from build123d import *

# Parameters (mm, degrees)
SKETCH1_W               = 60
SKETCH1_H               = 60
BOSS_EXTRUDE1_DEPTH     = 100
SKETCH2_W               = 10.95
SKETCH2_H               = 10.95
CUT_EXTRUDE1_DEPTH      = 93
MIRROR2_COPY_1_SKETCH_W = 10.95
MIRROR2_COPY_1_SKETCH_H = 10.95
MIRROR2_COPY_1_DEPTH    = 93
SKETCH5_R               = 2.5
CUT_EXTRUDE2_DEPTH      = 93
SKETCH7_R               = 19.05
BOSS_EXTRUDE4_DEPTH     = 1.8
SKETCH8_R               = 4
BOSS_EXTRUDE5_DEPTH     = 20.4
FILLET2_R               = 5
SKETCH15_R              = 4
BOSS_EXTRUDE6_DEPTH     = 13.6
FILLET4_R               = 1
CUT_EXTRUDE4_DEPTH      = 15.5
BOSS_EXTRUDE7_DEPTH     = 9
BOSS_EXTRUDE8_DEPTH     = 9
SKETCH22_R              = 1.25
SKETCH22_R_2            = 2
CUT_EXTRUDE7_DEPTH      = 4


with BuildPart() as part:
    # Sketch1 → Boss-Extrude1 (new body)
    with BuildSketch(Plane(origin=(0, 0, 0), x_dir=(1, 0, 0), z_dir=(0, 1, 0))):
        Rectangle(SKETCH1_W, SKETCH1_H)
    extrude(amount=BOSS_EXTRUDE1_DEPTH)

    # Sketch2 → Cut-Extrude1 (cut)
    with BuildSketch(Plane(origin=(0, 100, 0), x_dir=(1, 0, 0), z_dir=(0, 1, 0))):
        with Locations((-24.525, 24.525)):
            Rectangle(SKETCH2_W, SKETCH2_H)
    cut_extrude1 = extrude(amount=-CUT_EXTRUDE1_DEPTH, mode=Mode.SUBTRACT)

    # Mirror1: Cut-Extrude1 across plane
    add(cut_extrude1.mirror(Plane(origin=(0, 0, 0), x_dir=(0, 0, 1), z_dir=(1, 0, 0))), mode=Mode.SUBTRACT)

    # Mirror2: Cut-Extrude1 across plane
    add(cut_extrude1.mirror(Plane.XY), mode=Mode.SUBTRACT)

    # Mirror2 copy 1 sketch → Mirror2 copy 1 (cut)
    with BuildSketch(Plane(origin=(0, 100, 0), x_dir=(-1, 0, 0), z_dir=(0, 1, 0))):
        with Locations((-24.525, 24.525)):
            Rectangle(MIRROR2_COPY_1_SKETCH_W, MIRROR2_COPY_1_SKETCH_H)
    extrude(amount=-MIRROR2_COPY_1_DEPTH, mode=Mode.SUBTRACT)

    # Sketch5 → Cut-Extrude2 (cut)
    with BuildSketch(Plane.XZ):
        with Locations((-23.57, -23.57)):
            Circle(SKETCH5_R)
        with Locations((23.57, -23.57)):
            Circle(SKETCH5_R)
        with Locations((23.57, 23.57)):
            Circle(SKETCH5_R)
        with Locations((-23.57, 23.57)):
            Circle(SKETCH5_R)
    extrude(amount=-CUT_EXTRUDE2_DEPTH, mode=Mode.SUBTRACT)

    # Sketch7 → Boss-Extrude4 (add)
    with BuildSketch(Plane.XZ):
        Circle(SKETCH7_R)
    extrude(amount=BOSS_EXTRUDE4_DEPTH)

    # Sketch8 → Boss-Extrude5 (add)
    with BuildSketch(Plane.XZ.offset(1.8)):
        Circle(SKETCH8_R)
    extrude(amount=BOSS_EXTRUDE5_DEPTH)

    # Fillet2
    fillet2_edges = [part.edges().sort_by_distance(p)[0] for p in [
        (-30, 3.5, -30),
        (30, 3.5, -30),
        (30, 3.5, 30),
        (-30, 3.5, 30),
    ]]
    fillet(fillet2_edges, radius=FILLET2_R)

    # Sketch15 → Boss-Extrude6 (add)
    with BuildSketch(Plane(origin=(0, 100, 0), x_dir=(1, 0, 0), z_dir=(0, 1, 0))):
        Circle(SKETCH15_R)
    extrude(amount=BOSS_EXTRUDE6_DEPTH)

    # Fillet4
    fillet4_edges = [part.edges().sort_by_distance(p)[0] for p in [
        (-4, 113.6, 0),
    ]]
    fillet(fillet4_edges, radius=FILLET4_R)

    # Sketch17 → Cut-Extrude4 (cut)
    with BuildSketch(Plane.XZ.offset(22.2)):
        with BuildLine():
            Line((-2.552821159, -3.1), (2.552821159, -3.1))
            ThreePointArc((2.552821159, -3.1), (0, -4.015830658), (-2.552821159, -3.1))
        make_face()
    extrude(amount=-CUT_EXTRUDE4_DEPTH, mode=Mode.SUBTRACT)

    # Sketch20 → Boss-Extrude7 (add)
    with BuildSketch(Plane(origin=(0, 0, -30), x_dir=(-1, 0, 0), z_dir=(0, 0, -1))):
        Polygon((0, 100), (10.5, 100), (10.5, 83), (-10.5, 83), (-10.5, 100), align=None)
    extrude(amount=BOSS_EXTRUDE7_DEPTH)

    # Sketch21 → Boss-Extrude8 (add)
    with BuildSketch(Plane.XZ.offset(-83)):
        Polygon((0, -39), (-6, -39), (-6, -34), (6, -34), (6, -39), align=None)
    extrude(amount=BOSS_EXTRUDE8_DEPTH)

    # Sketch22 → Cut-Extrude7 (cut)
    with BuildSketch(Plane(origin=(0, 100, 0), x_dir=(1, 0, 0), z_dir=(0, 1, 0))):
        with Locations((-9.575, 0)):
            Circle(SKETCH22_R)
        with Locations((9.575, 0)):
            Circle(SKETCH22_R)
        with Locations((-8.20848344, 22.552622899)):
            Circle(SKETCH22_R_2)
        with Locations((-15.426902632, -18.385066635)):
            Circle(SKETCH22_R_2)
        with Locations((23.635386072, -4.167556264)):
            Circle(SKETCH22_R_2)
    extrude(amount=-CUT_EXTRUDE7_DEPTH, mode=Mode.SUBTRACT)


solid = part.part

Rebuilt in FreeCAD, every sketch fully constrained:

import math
import FreeCAD as App
import Part
import Sketcher
from FreeCAD import Vector
Q = App.Units.Quantity


def edges_at(feature, points):
    """Names of the edges that pass closest to the given points."""
    edges = feature.Shape.Edges
    near = lambda p: min(range(len(edges)), key=lambda i: edges[i].distToShape(Part.Vertex(*p))[0])
    return sorted({f"Edge{near(p) + 1}" for p in points})


def add_polygon(sketch, points):
    """Adds a closed chain of lines whose ends are joined by coincident constraints."""
    first, n = sketch.GeometryCount, len(points)
    for a, b in zip(points, points[1:] + points[:1]):
        sketch.addGeometry(Part.LineSegment(App.Vector(*a, 0), App.Vector(*b, 0)), False)
    for i in range(n):
        sketch.addConstraint(Sketcher.Constraint("Coincident", first + i, 2, first + (i + 1) % n, 1))

doc = App.newDocument("Part")
body = doc.addObject("PartDesign::Body", "Body")

# Sketch on XZ plane
sketch1 = doc.addObject("Sketcher::SketchObject", "Sketch")
body.addObject(sketch1)
sketch1.AttachmentSupport = (doc.XZ_Plane, [""])
sketch1.MapMode = "FlatFace"
add_polygon(sketch1, [(-30, -30), (-30, 30), (30, 30), (30, -30)])  # lines 0-3
sketch1.addConstraint([
    Sketcher.Constraint("Vertical", 0),
    Sketcher.Constraint("Horizontal", 1),
    Sketcher.Constraint("Vertical", 2),
    Sketcher.Constraint("Horizontal", 3),
    Sketcher.Constraint("Symmetric", 0, 2, 2, 2, -1, 1),
    Sketcher.Constraint("Equal", 3, 0),
    Sketcher.Constraint("DistanceX", 1, 1, 1, 2, Q("60 mm")),
])
pad1 = doc.addObject("PartDesign::Pad", "Pad")
body.addObject(pad1)
pad1.Profile = sketch1
pad1.Length = 100
pad1.Reversed = True

# Sketch on XZ plane
sketch2 = doc.addObject("Sketcher::SketchObject", "Sketch001")
body.addObject(sketch2)
sketch2.AttachmentSupport = (doc.XZ_Plane, [""])
sketch2.MapMode = "FlatFace"
sketch2.AttachmentOffset = App.Placement(Vector(0, 0, -100), App.Rotation())
add_polygon(sketch2, [(-30, -30), (-30, -19), (-19, -19), (-19, -30)])  # lines 0-3
sketch2.addConstraint([
    Sketcher.Constraint("Vertical", 0),
    Sketcher.Constraint("Horizontal", 1),
    Sketcher.Constraint("Vertical", 2),
    Sketcher.Constraint("Horizontal", 3),
    Sketcher.Constraint("Equal", 3, 0),
    Sketcher.Constraint("DistanceX", 0, 2, -1, 1, Q("30 mm")),
    Sketcher.Constraint("DistanceY", 2, 2, -1, 1, Q("30 mm")),
    Sketcher.Constraint("DistanceX", 1, 1, 1, 2, Q("10.95 mm")),
])
pocket1 = doc.addObject("PartDesign::Pocket", "Pocket")
body.addObject(pocket1)
pocket1.Profile = sketch2
pocket1.Length = 93
pocket1.Reversed = True
doc.recompute()

mirrored = doc.addObject("PartDesign::Mirrored", "Mirrored")
body.addObject(mirrored)
mirrored.Originals = [pocket1]
mirrored.MirrorPlane = (doc.YZ_Plane, [""])
body.Tip = mirrored
doc.recompute()

mirrored2 = doc.addObject("PartDesign::Mirrored", "Mirrored001")
body.addObject(mirrored2)
mirrored2.Originals = [pocket1]
mirrored2.MirrorPlane = (doc.XY_Plane, [""])
body.Tip = mirrored2

# Sketch on XZ plane
sketch3 = doc.addObject("Sketcher::SketchObject", "Sketch002")
body.addObject(sketch3)
sketch3.AttachmentSupport = (doc.XZ_Plane, [""])
sketch3.MapMode = "FlatFace"
sketch3.AttachmentOffset = App.Placement(Vector(0, 0, -100), App.Rotation())
add_polygon(sketch3, [(30, 30), (30, 19), (19, 19), (19, 30)])  # lines 0-3
sketch3.addConstraint([
    Sketcher.Constraint("Vertical", 0),
    Sketcher.Constraint("Horizontal", 1),
    Sketcher.Constraint("Vertical", 2),
    Sketcher.Constraint("Horizontal", 3),
    Sketcher.Constraint("Equal", 3, 0),
    Sketcher.Constraint("DistanceX", -1, 1, 0, 2, Q("30 mm")),
    Sketcher.Constraint("DistanceY", -1, 1, 2, 2, Q("30 mm")),
    Sketcher.Constraint("DistanceX", 1, 2, 1, 1, Q("10.95 mm")),
])
pocket2 = doc.addObject("PartDesign::Pocket", "Pocket001")
body.addObject(pocket2)
pocket2.Profile = sketch3
pocket2.Length = 93
pocket2.Reversed = True

# Sketch on XZ plane
sketch4 = doc.addObject("Sketcher::SketchObject", "Sketch003")
body.addObject(sketch4)
sketch4.AttachmentSupport = (doc.XZ_Plane, [""])
sketch4.MapMode = "FlatFace"
sketch4.addGeometry([
    Part.Circle(Vector(-23.6, -23.6, 0), Vector(0, 0, 1), 2.5),
    Part.Circle(Vector(23.6, -23.6, 0), Vector(0, 0, 1), 2.5),
    Part.Circle(Vector(23.6, 23.6, 0), Vector(0, 0, 1), 2.5),
    Part.Circle(Vector(-23.6, 23.6, 0), Vector(0, 0, 1), 2.5),
], False)
sketch4.addConstraint([
    Sketcher.Constraint("Equal", 0, 1),
    Sketcher.Constraint("Equal", 1, 2),
    Sketcher.Constraint("Equal", 2, 3),
    Sketcher.Constraint("Symmetric", 0, 3, 2, 3, -1, 1),
    Sketcher.Constraint("Symmetric", 1, 3, 3, 3, -1, 1),
    Sketcher.Constraint("Symmetric", 0, 3, 1, 3, -2),
    Sketcher.Constraint("Diameter", 0, Q("5 mm")),
    Sketcher.Constraint("DistanceX", 0, 3, -1, 1, Q("23.57 mm")),
    Sketcher.Constraint("DistanceY", 0, 3, -1, 1, Q("23.57 mm")),
])
pocket3 = doc.addObject("PartDesign::Pocket", "Pocket002")
body.addObject(pocket3)
pocket3.Profile = sketch4
pocket3.Length = 93

# Sketch on XZ plane
sketch5 = doc.addObject("Sketcher::SketchObject", "Sketch004")
body.addObject(sketch5)
sketch5.AttachmentSupport = (doc.XZ_Plane, [""])
sketch5.MapMode = "FlatFace"
sketch5.addGeometry(Part.Circle(Vector(0, 0, 0), Vector(0, 0, 1), 19), False)
sketch5.addConstraint([
    Sketcher.Constraint("Coincident", 0, 3, -1, 1),
    Sketcher.Constraint("Diameter", 0, Q("38.1 mm")),
])
pad2 = doc.addObject("PartDesign::Pad", "Pad001")
body.addObject(pad2)
pad2.Profile = sketch5
pad2.Length = 1.8

# Sketch on XZ plane
sketch6 = doc.addObject("Sketcher::SketchObject", "Sketch005")
body.addObject(sketch6)
sketch6.AttachmentSupport = (doc.XZ_Plane, [""])
sketch6.MapMode = "FlatFace"
sketch6.AttachmentOffset = App.Placement(Vector(0, 0, 1.8), App.Rotation())
sketch6.addGeometry(Part.Circle(Vector(0, 0, 0), Vector(0, 0, 1), 4), False)
sketch6.addConstraint([
    Sketcher.Constraint("Coincident", 0, 3, -1, 1),
    Sketcher.Constraint("Diameter", 0, Q("8 mm")),
])
pad3 = doc.addObject("PartDesign::Pad", "Pad002")
body.addObject(pad3)
pad3.Profile = sketch6
pad3.Length = 20.4
doc.recompute()

fillet = doc.addObject("PartDesign::Fillet", "Fillet")
body.addObject(fillet)
fillet.Base = (pad3, edges_at(pad3, [
    (-30, 3.5, -30),
    (30, 3.5, -30),
    (30, 3.5, 30),
    (-30, 3.5, 30),
]))
fillet.Radius = 5

# Sketch on XZ plane
sketch7 = doc.addObject("Sketcher::SketchObject", "Sketch006")
body.addObject(sketch7)
sketch7.AttachmentSupport = (doc.XZ_Plane, [""])
sketch7.MapMode = "FlatFace"
sketch7.AttachmentOffset = App.Placement(Vector(0, 0, -100), App.Rotation())
sketch7.addGeometry(Part.Circle(Vector(0, 0, 0), Vector(0, 0, 1), 4), False)
sketch7.addConstraint([
    Sketcher.Constraint("Coincident", 0, 3, -1, 1),
    Sketcher.Constraint("Diameter", 0, Q("8 mm")),
])
pad4 = doc.addObject("PartDesign::Pad", "Pad003")
body.addObject(pad4)
pad4.Profile = sketch7
pad4.Length = 13.6
pad4.Reversed = True
doc.recompute()

fillet2 = doc.addObject("PartDesign::Fillet", "Fillet001")
body.addObject(fillet2)
fillet2.Base = (pad4, edges_at(pad4, [(-4, 113.6, 0)]))
fillet2.Radius = 1

# Sketch on XZ plane
sketch8 = doc.addObject("Sketcher::SketchObject", "Sketch007")
body.addObject(sketch8)
sketch8.AttachmentSupport = (doc.XZ_Plane, [""])
sketch8.MapMode = "FlatFace"
sketch8.AttachmentOffset = App.Placement(Vector(0, 0, 22.2), App.Rotation())
sketch8.addGeometry([
    Part.LineSegment(Vector(2.6, -3.1, 0), Vector(-2.6, -3.1, 0)),
    Part.ArcOfCircle(Part.Circle(Vector(0, 0, 0), Vector(0, 0, 1), 4), math.radians(-129), math.radians(-51)),
], False)
sketch8.addConstraint([
    Sketcher.Constraint("Coincident", 0, 1, 1, 2),
    Sketcher.Constraint("Coincident", 1, 1, 0, 2),
    Sketcher.Constraint("Horizontal", 0),
    Sketcher.Constraint("Coincident", 1, 3, -1, 1),
    Sketcher.Constraint("DistanceY", 0, 1, -1, 1, Q("3.1 mm")),
    Sketcher.Constraint("Radius", 1, Q("4.015831 mm")),
])
pocket4 = doc.addObject("PartDesign::Pocket", "Pocket003")
body.addObject(pocket4)
pocket4.Profile = sketch8
pocket4.Length = 15.5

# Sketch on XY plane
sketch9 = doc.addObject("Sketcher::SketchObject", "Sketch008")
body.addObject(sketch9)
sketch9.AttachmentSupport = (doc.XY_Plane, [""])
sketch9.MapMode = "FlatFace"
sketch9.AttachmentOffset = App.Placement(Vector(0, 0, -30), App.Rotation())
add_polygon(sketch9, [(-10, 100), (10, 100), (10, 83), (-10, 83)])  # lines 0-3
sketch9.addConstraint([
    Sketcher.Constraint("Horizontal", 0),
    Sketcher.Constraint("Vertical", 1),
    Sketcher.Constraint("Horizontal", 2),
    Sketcher.Constraint("Vertical", 3),
    Sketcher.Constraint("DistanceX", 0, 1, 0, 2, Q("21 mm")),
    Sketcher.Constraint("DistanceY", 1, 2, 1, 1, Q("17 mm")),
    Sketcher.Constraint("DistanceY", -1, 1, 0, 2, Q("100 mm")),
    Sketcher.Constraint("DistanceX", -1, 1, 0, 2, Q("10.5 mm")),
])
pad5 = doc.addObject("PartDesign::Pad", "Pad004")
body.addObject(pad5)
pad5.Profile = sketch9
pad5.Length = 9
pad5.Reversed = True

# Sketch on XZ plane
sketch10 = doc.addObject("Sketcher::SketchObject", "Sketch009")
body.addObject(sketch10)
sketch10.AttachmentSupport = (doc.XZ_Plane, [""])
sketch10.MapMode = "FlatFace"
sketch10.AttachmentOffset = App.Placement(Vector(0, 0, -83), App.Rotation())
add_polygon(sketch10, [(-6, -39), (6, -39), (6, -34), (-6, -34)])  # lines 0-3
sketch10.addConstraint([
    Sketcher.Constraint("Horizontal", 0),
    Sketcher.Constraint("Vertical", 1),
    Sketcher.Constraint("Horizontal", 2),
    Sketcher.Constraint("Vertical", 3),
    Sketcher.Constraint("DistanceX", 0, 1, 0, 2, Q("12 mm")),
    Sketcher.Constraint("DistanceY", 1, 1, 1, 2, Q("5 mm")),
    Sketcher.Constraint("DistanceX", -1, 1, 0, 2, Q("6 mm")),
    Sketcher.Constraint("DistanceY", 0, 2, -1, 1, Q("39 mm")),
])
pad6 = doc.addObject("PartDesign::Pad", "Pad005")
body.addObject(pad6)
pad6.Profile = sketch10
pad6.Length = 9

# Sketch on XZ plane
sketch11 = doc.addObject("Sketcher::SketchObject", "Sketch010")
body.addObject(sketch11)
sketch11.AttachmentSupport = (doc.XZ_Plane, [""])
sketch11.MapMode = "FlatFace"
sketch11.AttachmentOffset = App.Placement(Vector(0, 0, -100), App.Rotation())
sketch11.addGeometry([
    Part.Circle(Vector(-9.6, 0, 0), Vector(0, 0, 1), 1.2),  # 0
    Part.Circle(Vector(9.6, 0, 0), Vector(0, 0, 1), 1.2),  # 1
    Part.Circle(Vector(-8.2, -22.6, 0), Vector(0, 0, 1), 2),  # 2
    Part.Circle(Vector(-15.4, 18.4, 0), Vector(0, 0, 1), 2),  # 3
    Part.Circle(Vector(23.6, 4.2, 0), Vector(0, 0, 1), 2),  # 4
], False)
sketch11.addConstraint([
    Sketcher.Constraint("Equal", 0, 1),
    Sketcher.Constraint("Equal", 2, 3),
    Sketcher.Constraint("Equal", 3, 4),
    Sketcher.Constraint("Symmetric", 0, 3, 1, 3, -1, 1),
    Sketcher.Constraint("PointOnObject", 0, 3, -1),
    Sketcher.Constraint("Diameter", 2, Q("4 mm")),
    Sketcher.Constraint("Diameter", 0, Q("2.5 mm")),
    Sketcher.Constraint("DistanceX", 0, 3, 1, 3, Q("19.15 mm")),
    Sketcher.Constraint("DistanceX", 3, 3, 2, 3, Q("7.218419 mm")),
    Sketcher.Constraint("DistanceY", 2, 3, 3, 3, Q("40.93769 mm")),
    Sketcher.Constraint("DistanceX", 3, 3, 4, 3, Q("39.062289 mm")),
    Sketcher.Constraint("DistanceY", 4, 3, 3, 3, Q("14.21751 mm")),
    Sketcher.Constraint("DistanceX", 2, 3, -1, 1, Q("8.208483 mm")),
    Sketcher.Constraint("DistanceY", 2, 3, -1, 1, Q("22.552623 mm")),
])
pocket5 = doc.addObject("PartDesign::Pocket", "Pocket004")
body.addObject(pocket5)
pocket5.Profile = sketch11
pocket5.Length = 4
pocket5.Reversed = True

doc.recompute()
